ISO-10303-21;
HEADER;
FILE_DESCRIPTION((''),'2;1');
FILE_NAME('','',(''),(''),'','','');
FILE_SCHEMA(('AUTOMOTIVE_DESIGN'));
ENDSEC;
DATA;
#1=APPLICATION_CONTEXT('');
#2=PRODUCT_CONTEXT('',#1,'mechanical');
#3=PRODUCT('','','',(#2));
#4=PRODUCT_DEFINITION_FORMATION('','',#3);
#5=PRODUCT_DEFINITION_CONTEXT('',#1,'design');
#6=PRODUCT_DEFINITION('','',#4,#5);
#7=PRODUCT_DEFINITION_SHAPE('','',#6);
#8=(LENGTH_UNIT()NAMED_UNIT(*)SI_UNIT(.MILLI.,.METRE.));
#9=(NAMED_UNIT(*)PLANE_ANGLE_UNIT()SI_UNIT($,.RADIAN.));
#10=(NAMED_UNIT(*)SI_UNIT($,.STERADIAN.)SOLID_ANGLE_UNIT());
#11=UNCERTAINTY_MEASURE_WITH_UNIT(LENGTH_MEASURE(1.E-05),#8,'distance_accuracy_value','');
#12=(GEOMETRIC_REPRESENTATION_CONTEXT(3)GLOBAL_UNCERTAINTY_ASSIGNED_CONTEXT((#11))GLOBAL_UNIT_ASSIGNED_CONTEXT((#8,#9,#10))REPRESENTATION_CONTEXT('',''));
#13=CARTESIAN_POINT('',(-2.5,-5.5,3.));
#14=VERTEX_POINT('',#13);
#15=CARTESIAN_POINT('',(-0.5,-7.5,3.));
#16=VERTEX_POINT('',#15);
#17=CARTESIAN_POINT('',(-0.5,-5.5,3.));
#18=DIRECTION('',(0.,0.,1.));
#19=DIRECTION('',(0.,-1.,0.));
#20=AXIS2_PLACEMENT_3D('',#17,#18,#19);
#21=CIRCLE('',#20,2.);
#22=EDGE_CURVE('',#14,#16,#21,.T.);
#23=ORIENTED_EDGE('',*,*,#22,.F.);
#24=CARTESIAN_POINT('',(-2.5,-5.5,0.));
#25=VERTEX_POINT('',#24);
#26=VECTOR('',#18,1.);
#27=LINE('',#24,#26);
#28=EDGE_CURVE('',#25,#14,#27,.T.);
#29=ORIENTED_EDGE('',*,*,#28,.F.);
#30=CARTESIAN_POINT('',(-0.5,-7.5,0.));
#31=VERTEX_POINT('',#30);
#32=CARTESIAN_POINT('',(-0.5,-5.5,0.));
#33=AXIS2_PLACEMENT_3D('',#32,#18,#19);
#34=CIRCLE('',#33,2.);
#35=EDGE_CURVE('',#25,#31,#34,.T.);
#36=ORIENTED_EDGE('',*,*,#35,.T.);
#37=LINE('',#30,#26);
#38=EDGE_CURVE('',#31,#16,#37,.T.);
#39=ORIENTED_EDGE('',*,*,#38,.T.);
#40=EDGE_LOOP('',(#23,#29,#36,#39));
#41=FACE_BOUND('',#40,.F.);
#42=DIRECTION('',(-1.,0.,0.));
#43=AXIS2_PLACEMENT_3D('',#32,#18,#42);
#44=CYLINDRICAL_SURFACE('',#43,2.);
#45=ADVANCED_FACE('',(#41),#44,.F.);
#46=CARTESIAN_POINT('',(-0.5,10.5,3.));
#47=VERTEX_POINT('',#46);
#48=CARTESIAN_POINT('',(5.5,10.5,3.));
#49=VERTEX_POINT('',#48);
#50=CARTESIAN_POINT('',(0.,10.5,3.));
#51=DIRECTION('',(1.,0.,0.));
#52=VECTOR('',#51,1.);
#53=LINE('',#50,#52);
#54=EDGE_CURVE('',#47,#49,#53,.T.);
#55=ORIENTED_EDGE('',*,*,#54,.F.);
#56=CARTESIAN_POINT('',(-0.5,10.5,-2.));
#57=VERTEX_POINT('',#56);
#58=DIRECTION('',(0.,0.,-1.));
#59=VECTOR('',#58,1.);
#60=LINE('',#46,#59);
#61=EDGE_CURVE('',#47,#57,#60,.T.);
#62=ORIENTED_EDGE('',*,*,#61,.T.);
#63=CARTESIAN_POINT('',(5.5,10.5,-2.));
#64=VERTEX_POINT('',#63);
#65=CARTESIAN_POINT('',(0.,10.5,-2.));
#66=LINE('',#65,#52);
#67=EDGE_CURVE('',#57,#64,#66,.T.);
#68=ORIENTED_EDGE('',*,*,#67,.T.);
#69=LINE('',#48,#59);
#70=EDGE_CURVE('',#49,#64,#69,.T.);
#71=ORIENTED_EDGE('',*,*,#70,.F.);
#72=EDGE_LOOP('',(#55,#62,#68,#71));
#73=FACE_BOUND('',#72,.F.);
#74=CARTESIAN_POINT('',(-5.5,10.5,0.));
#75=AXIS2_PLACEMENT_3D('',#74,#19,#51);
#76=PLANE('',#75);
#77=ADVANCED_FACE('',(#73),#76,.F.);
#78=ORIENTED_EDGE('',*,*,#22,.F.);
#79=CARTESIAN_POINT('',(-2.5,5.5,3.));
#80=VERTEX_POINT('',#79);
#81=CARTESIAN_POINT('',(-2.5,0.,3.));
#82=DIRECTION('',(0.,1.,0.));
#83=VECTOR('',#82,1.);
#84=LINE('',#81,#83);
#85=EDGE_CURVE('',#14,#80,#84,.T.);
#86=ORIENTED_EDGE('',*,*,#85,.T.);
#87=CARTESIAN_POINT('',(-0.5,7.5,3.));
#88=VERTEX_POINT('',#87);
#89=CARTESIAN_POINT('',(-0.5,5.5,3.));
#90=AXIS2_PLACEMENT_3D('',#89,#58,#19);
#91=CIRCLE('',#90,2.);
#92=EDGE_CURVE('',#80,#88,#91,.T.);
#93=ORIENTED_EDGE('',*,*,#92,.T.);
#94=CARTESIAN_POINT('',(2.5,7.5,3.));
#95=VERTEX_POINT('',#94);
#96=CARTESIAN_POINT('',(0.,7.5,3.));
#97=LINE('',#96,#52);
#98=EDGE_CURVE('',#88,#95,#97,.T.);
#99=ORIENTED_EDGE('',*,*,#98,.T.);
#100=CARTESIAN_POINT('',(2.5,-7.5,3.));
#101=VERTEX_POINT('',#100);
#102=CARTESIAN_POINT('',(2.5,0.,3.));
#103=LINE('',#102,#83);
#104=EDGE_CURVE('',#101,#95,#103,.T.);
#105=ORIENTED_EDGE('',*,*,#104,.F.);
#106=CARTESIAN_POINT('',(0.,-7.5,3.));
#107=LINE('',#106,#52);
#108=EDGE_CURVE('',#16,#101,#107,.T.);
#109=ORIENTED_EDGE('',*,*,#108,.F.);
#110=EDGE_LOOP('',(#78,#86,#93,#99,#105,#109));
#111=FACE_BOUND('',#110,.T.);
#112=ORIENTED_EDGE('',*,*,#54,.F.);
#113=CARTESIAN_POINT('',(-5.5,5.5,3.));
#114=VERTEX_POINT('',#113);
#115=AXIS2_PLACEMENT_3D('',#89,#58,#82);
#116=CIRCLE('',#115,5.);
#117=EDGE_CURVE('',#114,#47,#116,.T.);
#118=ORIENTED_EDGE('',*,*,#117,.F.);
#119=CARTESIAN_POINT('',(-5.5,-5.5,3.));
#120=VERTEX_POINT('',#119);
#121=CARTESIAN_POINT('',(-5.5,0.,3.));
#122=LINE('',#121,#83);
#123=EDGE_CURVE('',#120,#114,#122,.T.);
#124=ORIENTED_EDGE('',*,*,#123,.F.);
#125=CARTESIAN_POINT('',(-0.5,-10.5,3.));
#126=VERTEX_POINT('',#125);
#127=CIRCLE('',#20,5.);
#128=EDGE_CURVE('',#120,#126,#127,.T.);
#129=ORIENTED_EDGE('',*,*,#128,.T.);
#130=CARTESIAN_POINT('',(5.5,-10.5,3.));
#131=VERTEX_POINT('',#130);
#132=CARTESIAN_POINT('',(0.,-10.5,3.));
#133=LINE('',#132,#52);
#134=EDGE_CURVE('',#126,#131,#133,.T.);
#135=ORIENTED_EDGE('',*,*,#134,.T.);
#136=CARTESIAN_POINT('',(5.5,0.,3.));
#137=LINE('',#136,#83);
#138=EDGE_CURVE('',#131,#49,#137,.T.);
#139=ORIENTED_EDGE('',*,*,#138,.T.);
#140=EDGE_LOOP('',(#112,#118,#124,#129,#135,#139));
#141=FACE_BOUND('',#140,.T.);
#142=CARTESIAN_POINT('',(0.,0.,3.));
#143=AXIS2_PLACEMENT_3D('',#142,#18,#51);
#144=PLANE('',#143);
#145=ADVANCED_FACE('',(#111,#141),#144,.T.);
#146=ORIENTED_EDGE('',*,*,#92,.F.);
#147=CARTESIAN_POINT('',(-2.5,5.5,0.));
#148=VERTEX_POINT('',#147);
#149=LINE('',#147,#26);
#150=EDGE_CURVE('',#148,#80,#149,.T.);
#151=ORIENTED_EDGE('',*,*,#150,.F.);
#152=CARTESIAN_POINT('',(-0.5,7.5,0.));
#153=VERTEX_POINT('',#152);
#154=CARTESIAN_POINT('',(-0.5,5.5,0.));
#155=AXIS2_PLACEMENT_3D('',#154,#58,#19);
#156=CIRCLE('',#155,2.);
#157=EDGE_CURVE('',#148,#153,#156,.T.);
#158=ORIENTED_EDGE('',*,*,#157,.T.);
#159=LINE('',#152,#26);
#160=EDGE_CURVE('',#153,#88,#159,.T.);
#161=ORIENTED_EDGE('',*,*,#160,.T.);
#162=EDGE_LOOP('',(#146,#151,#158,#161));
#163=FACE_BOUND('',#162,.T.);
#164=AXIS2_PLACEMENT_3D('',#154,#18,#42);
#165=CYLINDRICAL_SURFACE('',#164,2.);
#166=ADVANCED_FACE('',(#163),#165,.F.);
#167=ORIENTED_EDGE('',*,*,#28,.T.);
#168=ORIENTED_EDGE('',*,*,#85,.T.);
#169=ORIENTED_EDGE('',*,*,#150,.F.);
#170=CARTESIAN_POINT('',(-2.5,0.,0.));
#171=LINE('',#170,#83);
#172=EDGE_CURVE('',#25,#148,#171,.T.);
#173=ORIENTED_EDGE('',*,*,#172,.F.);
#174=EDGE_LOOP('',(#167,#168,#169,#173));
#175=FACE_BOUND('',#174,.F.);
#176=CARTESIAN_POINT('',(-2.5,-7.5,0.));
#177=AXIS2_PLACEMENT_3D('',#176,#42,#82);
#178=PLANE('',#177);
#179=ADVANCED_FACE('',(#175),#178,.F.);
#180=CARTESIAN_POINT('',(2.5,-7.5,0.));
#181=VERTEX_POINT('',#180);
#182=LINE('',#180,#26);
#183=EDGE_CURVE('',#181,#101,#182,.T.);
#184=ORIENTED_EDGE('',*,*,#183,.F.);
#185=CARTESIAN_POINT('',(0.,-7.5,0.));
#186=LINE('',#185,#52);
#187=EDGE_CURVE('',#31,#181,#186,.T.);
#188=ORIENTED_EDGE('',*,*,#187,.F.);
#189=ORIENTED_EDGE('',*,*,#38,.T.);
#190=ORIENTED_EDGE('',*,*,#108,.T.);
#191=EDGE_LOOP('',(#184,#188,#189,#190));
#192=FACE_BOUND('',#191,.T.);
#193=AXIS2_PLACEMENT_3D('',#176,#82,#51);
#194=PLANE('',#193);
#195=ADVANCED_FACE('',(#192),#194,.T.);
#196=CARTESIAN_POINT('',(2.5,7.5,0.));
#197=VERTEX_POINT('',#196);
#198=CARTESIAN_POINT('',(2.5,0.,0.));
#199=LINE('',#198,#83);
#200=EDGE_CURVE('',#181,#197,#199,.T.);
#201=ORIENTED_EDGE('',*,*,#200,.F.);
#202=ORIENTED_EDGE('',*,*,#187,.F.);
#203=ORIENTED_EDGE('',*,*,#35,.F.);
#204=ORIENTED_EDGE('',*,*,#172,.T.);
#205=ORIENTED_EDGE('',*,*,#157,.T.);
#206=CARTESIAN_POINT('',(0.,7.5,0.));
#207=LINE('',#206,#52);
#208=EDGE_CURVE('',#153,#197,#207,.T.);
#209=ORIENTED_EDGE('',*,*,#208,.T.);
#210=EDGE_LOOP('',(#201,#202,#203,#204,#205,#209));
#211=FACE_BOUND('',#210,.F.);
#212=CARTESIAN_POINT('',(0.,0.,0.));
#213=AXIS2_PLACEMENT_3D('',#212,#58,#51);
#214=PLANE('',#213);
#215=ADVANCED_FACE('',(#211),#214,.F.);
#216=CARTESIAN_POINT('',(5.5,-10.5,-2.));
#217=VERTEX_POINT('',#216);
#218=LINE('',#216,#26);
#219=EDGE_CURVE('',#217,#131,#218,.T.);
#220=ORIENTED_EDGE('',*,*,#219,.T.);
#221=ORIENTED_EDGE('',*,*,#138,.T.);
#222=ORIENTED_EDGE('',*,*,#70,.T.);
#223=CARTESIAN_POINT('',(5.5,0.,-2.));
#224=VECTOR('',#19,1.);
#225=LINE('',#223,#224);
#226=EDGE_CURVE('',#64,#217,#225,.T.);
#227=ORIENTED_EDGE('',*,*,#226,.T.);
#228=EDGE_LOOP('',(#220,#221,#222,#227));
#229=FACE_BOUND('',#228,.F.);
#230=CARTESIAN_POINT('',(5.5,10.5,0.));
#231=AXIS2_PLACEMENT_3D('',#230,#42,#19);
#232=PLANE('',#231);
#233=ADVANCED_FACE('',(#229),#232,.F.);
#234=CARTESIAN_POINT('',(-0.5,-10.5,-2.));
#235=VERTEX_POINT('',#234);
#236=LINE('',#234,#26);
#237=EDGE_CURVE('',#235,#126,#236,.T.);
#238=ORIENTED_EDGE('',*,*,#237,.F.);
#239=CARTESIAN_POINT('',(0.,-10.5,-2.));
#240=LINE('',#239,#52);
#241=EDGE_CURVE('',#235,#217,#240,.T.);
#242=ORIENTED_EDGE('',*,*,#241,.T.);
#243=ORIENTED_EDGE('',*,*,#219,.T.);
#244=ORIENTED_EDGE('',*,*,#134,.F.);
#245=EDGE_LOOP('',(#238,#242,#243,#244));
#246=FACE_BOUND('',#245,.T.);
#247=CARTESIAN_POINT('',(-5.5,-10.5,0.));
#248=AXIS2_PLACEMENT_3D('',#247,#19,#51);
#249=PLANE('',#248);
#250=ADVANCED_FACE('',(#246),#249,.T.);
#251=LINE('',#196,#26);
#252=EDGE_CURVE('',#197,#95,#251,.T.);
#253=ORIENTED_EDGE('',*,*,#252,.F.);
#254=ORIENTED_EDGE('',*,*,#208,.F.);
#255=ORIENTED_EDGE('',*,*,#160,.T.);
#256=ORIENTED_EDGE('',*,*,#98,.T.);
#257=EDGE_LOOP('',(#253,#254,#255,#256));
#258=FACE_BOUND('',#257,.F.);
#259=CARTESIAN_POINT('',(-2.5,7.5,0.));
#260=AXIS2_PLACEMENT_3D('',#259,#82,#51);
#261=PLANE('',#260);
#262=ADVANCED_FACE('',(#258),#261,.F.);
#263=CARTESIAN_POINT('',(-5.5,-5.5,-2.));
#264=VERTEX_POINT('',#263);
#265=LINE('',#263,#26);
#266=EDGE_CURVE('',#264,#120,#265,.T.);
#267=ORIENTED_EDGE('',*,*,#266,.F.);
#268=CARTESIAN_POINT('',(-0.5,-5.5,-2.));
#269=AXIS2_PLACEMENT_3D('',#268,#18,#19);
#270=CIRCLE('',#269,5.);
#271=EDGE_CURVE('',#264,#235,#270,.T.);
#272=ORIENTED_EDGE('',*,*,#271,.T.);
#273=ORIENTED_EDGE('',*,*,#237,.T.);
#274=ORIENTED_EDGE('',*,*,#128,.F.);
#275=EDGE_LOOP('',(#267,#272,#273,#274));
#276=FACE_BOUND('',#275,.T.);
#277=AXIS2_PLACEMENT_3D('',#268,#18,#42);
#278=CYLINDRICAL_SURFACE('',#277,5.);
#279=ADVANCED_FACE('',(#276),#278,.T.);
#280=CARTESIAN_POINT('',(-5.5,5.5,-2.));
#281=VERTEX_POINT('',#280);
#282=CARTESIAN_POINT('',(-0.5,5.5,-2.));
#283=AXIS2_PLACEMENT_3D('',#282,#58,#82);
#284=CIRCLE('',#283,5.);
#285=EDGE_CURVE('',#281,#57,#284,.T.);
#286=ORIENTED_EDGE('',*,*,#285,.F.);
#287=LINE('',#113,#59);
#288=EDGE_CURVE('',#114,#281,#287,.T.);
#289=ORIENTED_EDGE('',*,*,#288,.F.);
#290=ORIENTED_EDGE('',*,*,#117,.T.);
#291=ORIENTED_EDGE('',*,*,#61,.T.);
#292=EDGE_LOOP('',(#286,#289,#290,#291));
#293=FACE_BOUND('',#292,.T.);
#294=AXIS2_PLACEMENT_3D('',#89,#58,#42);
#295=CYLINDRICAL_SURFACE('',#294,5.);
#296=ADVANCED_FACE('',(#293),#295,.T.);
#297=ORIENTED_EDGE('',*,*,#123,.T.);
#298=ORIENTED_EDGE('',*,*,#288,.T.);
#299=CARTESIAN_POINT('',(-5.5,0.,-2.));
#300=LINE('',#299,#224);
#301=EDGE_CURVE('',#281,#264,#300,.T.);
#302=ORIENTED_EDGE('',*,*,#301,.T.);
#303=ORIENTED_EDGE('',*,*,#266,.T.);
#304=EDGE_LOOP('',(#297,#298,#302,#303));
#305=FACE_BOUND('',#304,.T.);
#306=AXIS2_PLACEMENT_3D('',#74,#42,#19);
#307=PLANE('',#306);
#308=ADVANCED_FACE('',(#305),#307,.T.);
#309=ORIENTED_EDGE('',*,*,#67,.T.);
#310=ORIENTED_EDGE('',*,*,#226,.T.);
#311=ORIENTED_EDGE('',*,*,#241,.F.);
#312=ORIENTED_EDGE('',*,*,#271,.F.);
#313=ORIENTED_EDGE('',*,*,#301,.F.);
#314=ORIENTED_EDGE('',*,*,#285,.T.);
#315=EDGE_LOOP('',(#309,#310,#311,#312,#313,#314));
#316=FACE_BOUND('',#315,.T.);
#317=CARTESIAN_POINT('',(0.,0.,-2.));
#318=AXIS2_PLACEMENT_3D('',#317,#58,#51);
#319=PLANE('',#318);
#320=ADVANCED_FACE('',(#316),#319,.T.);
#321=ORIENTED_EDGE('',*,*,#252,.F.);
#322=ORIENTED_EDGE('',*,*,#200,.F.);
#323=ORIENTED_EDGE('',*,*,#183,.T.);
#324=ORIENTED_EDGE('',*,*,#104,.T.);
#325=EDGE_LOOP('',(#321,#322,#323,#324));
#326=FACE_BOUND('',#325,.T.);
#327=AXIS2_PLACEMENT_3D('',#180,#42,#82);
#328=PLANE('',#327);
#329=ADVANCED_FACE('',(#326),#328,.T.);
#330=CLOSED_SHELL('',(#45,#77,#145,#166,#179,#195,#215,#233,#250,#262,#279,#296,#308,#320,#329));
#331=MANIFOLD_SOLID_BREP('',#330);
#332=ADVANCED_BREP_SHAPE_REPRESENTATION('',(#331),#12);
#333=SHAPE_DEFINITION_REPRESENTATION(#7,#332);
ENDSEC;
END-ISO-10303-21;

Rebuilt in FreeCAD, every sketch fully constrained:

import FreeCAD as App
import Part
import Sketcher

V = App.Vector
Q = App.Units.Quantity


def edges_at(feature, points):
    """Names of the edges that pass closest to the given points."""
    edges = feature.Shape.Edges
    near = lambda p: min(range(len(edges)), key=lambda i: edges[i].distToShape(Part.Vertex(*p))[0])
    return sorted({f"Edge{near(p) + 1}" for p in points})

doc = App.newDocument("Part")
body = doc.addObject("PartDesign::Body", "Body")

# Sketch on XY plane
sketch1 = body.newObject("Sketcher::SketchObject", "Sketch")
sketch1.AttachmentSupport = (doc.getObject("XY_Plane"), [""])
sketch1.MapMode = "FlatFace"
sketch1.addGeometry([
    Part.LineSegment(V(-6, 10, 0), V(-6, -10, 0)),  # 0
    Part.LineSegment(V(-6, -10, 0), V(6, -10, 0)),  # 1
    Part.LineSegment(V(6, -10, 0), V(6, 10, 0)),  # 2
    Part.LineSegment(V(6, 10, 0), V(-6, 10, 0)),  # 3
    Part.LineSegment(V(2, -8, 0), V(-2, -8, 0)),  # 4
    Part.LineSegment(V(-2, -8, 0), V(-2, 8, 0)),  # 5
    Part.LineSegment(V(-2, 8, 0), V(2, 8, 0)),  # 6
    Part.LineSegment(V(2, 8, 0), V(2, -8, 0)),  # 7
], False)
sketch1.addConstraint([
    Sketcher.Constraint("Coincident", 0, 2, 1, 1),
    Sketcher.Constraint("Coincident", 1, 2, 2, 1),
    Sketcher.Constraint("Coincident", 2, 2, 3, 1),
    Sketcher.Constraint("Coincident", 3, 2, 0, 1),
    Sketcher.Constraint("Coincident", 4, 2, 5, 1),
    Sketcher.Constraint("Coincident", 5, 2, 6, 1),
    Sketcher.Constraint("Coincident", 6, 2, 7, 1),
    Sketcher.Constraint("Coincident", 7, 2, 4, 1),
    Sketcher.Constraint("Vertical", 0),
    Sketcher.Constraint("Horizontal", 1),
    Sketcher.Constraint("Vertical", 2),
    Sketcher.Constraint("Horizontal", 3),
    Sketcher.Constraint("Horizontal", 4),
    Sketcher.Constraint("Vertical", 5),
    Sketcher.Constraint("Horizontal", 6),
    Sketcher.Constraint("Vertical", 7),
    Sketcher.Constraint("Symmetric", 0, 2, 2, 2, -1, 1),
    Sketcher.Constraint("Symmetric", 4, 2, 6, 2, -1, 1),
    Sketcher.Constraint("DistanceX", 1, 1, 1, 2, Q("11 mm")),
    Sketcher.Constraint("DistanceX", 4, 2, 4, 1, Q("5 mm")),
    Sketcher.Constraint("DistanceY", 0, 2, 0, 1, Q("21 mm")),
    Sketcher.Constraint("DistanceY", 5, 1, 5, 2, Q("15 mm")),
])
pad1 = body.newObject("PartDesign::Pad", "Pad")
pad1.Profile = sketch1
pad1.Length = 3

# Sketch on XY plane
sketch2 = body.newObject("Sketcher::SketchObject", "Sketch001")
sketch2.AttachmentSupport = (doc.getObject("XY_Plane"), [""])
sketch2.MapMode = "FlatFace"
sketch2.addGeometry([
    Part.LineSegment(V(-6, -10, 0), V(-6, 10, 0)),
    Part.LineSegment(V(-6, 10, 0), V(6, 10, 0)),
    Part.LineSegment(V(6, 10, 0), V(6, -10, 0)),
    Part.LineSegment(V(6, -10, 0), V(-6, -10, 0)),
], False)
sketch2.addConstraint([
    Sketcher.Constraint("Coincident", 0, 2, 1, 1),
    Sketcher.Constraint("Coincident", 1, 2, 2, 1),
    Sketcher.Constraint("Coincident", 2, 2, 3, 1),
    Sketcher.Constraint("Coincident", 3, 2, 0, 1),
    Sketcher.Constraint("Vertical", 0),
    Sketcher.Constraint("Horizontal", 1),
    Sketcher.Constraint("Vertical", 2),
    Sketcher.Constraint("Horizontal", 3),
    Sketcher.Constraint("Symmetric", 0, 2, 2, 2, -1, 1),
    Sketcher.Constraint("DistanceX", 1, 1, 1, 2, Q("11 mm")),
    Sketcher.Constraint("DistanceY", 0, 1, 0, 2, Q("21 mm")),
])
pad2 = body.newObject("PartDesign::Pad", "Pad001")
pad2.Profile = sketch2
pad2.Length = 2
pad2.Reversed = True
doc.recompute()

fillet = body.newObject("PartDesign::Fillet", "Fillet")
fillet.Base = (pad2, edges_at(pad2, [(-2.5, -7.5, 1.5), (-2.5, 7.5, 1.5)]))
fillet.Radius = 2
doc.recompute()

fillet2 = body.newObject("PartDesign::Fillet", "Fillet001")
fillet2.Base = (fillet, edges_at(fillet, [(-5.5, -10.5, 0.5), (-5.5, 10.5, 0.5)]))
fillet2.Radius = 5

doc.recompute()
